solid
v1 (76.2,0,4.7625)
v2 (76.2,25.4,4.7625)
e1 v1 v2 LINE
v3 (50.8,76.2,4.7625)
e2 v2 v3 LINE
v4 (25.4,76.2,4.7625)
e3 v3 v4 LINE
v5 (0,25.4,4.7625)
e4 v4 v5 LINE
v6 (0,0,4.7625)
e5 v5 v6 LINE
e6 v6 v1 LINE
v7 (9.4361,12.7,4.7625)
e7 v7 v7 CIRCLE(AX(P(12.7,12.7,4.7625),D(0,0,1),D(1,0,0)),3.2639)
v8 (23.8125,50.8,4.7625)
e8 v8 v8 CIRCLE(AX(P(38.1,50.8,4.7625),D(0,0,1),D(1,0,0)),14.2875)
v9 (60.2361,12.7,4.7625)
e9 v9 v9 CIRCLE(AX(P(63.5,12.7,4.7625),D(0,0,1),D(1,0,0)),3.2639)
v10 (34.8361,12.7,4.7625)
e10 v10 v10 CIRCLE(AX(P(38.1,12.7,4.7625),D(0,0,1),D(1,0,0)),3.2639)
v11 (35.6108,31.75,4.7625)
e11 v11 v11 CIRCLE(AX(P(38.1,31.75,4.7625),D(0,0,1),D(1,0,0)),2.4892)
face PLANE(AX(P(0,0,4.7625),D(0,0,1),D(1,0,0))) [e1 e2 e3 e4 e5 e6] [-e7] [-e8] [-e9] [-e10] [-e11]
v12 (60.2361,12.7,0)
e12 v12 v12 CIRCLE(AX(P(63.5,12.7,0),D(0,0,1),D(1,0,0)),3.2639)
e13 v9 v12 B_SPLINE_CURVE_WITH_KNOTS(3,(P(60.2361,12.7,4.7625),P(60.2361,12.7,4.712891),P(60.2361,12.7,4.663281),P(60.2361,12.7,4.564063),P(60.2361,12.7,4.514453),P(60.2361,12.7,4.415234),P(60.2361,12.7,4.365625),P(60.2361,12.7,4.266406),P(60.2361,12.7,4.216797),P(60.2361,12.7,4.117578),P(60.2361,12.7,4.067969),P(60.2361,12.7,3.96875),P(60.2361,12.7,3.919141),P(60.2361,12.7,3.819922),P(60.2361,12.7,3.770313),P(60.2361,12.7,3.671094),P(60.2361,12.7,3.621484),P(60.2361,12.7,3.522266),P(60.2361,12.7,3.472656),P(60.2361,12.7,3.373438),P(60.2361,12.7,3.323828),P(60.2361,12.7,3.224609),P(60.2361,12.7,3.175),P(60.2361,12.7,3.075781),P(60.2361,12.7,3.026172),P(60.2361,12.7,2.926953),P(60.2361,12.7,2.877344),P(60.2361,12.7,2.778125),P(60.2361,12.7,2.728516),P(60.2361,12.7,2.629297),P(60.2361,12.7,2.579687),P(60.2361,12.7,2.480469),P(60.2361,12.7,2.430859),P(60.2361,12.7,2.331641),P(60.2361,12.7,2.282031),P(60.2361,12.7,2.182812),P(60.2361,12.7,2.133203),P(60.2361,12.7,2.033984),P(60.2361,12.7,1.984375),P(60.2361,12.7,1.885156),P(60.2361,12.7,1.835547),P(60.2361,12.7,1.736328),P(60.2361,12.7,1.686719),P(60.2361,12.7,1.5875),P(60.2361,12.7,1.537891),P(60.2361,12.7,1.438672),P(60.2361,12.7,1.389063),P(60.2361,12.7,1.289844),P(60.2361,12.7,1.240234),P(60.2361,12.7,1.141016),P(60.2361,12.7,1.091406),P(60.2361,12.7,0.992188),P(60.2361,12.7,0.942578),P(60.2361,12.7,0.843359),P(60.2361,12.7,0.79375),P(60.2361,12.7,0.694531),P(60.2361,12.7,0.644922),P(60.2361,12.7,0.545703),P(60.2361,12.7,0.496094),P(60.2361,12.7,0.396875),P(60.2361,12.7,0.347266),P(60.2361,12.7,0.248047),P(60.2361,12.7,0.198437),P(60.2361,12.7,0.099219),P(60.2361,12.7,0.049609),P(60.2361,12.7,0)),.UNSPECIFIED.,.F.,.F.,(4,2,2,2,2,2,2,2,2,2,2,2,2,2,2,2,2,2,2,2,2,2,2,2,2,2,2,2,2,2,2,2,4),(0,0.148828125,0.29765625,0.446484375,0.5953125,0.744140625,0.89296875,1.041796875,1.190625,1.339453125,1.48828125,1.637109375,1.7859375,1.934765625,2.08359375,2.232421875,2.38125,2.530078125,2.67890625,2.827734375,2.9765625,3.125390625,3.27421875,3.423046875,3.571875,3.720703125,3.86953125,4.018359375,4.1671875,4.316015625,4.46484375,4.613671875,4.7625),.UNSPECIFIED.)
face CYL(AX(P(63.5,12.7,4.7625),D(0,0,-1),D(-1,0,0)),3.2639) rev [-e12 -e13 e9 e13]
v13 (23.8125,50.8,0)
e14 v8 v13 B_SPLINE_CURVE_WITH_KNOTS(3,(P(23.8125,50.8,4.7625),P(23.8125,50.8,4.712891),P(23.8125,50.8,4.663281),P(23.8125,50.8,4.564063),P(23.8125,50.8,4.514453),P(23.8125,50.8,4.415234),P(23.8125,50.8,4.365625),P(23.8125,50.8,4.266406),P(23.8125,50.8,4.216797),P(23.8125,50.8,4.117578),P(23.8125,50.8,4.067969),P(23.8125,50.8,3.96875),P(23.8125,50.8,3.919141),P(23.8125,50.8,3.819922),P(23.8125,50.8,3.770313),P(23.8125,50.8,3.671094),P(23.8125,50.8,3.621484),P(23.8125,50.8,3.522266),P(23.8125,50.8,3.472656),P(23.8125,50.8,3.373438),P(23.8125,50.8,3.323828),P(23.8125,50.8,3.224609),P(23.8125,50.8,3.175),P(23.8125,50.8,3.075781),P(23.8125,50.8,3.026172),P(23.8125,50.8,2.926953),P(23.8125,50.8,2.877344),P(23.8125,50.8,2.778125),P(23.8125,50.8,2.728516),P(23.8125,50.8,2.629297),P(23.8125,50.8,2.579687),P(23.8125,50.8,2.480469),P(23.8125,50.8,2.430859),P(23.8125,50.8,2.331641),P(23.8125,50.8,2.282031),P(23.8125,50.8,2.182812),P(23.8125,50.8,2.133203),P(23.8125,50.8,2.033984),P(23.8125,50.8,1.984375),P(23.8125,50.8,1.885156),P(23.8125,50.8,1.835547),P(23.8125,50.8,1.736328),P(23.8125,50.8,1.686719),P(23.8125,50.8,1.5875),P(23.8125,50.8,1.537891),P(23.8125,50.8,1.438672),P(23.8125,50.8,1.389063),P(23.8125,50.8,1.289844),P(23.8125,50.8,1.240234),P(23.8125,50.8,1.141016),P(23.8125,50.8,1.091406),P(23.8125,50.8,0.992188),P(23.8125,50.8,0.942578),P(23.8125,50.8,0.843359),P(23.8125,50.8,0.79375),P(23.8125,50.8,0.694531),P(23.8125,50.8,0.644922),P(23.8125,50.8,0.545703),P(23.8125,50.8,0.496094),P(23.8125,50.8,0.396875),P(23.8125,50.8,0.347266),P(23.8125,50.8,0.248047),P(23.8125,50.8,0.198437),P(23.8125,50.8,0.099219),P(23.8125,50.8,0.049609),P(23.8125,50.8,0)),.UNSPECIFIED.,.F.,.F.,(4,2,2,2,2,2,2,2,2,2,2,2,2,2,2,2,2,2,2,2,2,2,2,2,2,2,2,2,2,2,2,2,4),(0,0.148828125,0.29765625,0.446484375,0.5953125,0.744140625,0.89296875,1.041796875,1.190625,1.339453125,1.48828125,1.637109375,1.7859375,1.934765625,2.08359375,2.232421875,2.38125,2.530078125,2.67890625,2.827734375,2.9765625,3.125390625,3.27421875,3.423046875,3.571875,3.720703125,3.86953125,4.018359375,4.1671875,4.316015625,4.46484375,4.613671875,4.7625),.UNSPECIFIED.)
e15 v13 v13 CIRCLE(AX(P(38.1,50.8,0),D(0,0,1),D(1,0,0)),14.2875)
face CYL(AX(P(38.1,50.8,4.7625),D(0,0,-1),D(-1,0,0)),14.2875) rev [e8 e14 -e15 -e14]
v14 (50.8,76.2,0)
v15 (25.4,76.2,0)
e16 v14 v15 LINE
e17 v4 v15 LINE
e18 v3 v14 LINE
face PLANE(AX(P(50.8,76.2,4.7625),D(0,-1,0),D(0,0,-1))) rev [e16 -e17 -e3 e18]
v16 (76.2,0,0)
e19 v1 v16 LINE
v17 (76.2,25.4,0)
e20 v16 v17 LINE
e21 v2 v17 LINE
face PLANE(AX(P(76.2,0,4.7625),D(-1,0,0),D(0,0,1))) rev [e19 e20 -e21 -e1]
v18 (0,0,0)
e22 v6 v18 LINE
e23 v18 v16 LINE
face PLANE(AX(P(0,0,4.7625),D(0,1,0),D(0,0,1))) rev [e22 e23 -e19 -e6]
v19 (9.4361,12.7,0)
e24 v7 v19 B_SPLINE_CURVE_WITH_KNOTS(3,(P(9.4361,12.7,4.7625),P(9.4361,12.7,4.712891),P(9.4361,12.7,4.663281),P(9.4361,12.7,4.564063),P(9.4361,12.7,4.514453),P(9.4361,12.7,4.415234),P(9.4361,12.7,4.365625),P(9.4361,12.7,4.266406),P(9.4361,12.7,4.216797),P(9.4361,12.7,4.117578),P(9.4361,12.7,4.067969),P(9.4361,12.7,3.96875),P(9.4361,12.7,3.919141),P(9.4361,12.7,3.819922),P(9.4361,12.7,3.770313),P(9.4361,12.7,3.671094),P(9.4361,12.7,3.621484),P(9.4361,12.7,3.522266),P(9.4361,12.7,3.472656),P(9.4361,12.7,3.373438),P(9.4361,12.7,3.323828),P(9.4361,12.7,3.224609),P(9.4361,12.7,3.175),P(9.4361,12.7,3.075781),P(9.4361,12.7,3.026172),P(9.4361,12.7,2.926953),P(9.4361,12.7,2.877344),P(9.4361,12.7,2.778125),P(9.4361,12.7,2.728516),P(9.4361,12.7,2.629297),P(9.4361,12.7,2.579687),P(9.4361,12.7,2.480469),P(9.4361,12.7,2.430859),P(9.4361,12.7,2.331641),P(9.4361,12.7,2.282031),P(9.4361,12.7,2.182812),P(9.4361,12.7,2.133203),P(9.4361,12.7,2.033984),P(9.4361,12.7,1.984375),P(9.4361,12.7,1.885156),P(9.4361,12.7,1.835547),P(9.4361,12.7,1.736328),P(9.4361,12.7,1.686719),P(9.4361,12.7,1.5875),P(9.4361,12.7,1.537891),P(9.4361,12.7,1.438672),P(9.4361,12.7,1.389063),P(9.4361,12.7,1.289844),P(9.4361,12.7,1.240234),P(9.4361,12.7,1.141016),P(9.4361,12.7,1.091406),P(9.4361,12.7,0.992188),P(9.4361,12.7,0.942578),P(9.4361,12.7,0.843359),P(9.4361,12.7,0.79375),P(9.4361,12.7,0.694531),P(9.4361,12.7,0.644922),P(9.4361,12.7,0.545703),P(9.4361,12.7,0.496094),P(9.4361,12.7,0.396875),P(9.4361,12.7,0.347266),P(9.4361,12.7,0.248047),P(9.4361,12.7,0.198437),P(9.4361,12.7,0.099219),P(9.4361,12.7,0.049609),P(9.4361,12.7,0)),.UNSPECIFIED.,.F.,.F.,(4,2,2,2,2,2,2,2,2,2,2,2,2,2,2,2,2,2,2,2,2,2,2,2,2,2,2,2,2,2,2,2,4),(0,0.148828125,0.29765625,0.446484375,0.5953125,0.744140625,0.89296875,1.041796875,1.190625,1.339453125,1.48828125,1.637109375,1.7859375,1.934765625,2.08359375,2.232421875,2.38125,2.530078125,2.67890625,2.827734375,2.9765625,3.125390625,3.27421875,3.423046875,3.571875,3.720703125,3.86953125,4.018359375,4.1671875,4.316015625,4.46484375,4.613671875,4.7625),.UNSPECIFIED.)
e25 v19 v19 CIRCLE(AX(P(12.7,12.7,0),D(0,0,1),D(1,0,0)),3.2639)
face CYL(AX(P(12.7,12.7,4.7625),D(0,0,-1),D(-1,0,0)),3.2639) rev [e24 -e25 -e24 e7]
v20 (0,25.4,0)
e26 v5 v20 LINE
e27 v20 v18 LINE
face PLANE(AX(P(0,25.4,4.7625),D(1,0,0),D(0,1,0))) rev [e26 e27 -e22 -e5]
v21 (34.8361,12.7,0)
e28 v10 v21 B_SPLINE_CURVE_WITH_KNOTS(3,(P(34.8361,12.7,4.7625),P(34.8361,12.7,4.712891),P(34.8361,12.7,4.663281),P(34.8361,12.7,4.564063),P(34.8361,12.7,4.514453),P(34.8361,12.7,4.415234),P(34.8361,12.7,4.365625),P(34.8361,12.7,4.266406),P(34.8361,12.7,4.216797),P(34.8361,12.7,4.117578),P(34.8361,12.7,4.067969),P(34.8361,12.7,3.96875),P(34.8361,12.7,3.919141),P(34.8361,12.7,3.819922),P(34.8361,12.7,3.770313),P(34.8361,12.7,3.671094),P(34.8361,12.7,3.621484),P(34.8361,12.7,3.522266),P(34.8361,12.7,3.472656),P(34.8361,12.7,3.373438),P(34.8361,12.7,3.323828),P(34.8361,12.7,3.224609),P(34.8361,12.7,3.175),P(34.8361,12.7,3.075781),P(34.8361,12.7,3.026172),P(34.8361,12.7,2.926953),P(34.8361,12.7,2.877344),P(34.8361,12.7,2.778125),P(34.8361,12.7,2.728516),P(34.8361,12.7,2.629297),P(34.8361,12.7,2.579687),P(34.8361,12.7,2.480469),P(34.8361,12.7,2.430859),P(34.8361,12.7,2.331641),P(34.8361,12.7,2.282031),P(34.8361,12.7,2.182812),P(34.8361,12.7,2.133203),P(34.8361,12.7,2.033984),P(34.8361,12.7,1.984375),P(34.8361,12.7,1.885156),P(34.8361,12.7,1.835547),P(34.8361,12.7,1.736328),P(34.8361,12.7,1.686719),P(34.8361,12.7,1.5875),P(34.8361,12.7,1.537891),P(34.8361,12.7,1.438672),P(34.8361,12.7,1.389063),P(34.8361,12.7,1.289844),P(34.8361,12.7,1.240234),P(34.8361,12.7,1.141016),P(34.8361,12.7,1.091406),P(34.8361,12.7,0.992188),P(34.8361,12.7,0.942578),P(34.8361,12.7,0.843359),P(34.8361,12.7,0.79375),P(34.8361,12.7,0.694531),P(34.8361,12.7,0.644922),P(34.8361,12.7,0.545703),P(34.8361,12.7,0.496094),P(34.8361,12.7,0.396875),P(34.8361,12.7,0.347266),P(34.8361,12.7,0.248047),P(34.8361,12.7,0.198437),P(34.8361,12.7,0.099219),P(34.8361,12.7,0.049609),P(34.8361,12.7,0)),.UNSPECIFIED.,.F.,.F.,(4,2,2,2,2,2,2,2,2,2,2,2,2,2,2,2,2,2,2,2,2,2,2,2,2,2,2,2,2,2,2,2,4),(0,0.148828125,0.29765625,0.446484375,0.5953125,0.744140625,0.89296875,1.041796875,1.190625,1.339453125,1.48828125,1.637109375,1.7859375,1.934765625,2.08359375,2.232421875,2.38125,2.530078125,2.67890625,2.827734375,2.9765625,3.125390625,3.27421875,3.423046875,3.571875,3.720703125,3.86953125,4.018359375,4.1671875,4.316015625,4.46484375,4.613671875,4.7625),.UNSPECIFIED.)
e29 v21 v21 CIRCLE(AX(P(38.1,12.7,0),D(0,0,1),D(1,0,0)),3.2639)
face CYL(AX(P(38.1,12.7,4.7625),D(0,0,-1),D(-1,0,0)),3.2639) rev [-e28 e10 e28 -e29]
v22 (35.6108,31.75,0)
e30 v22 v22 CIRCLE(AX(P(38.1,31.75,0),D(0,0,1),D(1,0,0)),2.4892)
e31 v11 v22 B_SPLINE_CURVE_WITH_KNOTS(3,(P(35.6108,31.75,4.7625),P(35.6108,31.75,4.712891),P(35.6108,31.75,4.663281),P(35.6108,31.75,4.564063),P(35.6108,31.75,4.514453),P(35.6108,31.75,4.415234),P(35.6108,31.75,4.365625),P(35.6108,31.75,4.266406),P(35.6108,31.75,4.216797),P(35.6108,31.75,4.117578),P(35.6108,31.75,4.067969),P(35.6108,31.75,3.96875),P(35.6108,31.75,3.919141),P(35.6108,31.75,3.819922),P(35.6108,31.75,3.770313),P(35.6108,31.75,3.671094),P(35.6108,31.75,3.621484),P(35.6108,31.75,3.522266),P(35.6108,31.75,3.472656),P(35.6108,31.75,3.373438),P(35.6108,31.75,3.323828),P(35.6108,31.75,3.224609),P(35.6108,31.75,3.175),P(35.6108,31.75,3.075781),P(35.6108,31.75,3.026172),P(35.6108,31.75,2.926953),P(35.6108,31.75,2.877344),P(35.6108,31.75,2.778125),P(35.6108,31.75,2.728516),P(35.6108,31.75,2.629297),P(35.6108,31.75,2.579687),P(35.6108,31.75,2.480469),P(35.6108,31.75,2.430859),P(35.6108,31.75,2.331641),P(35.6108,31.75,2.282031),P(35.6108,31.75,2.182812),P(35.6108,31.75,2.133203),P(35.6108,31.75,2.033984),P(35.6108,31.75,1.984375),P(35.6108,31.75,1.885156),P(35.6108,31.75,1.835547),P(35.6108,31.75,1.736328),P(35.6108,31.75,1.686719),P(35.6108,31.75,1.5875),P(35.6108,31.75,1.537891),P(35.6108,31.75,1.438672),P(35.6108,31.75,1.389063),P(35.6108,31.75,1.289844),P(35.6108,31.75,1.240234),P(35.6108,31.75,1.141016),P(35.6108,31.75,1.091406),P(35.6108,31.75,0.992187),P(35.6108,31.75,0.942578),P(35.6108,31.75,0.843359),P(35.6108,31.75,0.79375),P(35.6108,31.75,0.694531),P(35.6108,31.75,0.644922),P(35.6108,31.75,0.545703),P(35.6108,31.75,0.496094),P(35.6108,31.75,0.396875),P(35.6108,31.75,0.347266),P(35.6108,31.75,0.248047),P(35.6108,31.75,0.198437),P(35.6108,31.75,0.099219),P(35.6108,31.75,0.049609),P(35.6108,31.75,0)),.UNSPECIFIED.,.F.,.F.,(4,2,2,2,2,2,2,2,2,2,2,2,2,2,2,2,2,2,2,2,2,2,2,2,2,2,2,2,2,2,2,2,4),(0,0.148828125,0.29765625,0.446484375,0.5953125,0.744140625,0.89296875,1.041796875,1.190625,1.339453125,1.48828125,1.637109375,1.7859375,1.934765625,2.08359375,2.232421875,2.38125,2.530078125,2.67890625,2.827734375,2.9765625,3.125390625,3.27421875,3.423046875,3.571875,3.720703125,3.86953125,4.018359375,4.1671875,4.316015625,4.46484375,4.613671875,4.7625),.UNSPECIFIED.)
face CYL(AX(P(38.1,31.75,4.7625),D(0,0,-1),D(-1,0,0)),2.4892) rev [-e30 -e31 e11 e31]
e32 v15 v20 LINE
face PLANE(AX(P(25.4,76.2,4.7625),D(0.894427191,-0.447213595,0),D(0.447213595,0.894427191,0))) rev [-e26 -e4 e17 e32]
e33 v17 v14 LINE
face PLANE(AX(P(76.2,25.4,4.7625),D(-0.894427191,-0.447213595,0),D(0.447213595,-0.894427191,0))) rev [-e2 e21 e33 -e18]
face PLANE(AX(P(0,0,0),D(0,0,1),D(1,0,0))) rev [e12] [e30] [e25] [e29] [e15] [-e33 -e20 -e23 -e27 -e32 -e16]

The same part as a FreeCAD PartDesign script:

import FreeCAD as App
import Part
import Sketcher

V = App.Vector
Q = App.Units.Quantity

doc = App.newDocument("Part")
params = doc.addObject("Spreadsheet::Sheet", "Params")
for row, (alias, value) in enumerate([
    ("sketch1_width", "3 in"),
    ("sketch1_width2", "1 in"),
    ("sketch1_diameter", "0.257 in"),
    ("sketch1_diameter2", "0.196 in"),
    ("sketch1_diameter3", "1.125 in"),
    ("pad1_length", "0.1875 in"),
], start=1):
    params.set(f"A{row}", alias)
    params.set(f"B{row}", "=" + value)
    params.setAlias(f"B{row}", alias)

body = doc.addObject("PartDesign::Body", "Body")

sketch1 = doc.addObject("Sketcher::SketchObject", "Sketch")
body.addObject(sketch1)
sketch1.AttachmentSupport = (doc.XY_Plane, [""])
sketch1.MapMode = "FlatFace"
sketch1.addGeometry([
    Part.LineSegment(V(0, 0, 0), V(76.2, 0, 0)),
    Part.LineSegment(V(76.2, 0, 0), V(76.2, 25.4, 0)),
    Part.LineSegment(V(76.2, 25.4, 0), V(50.8, 76.2, 0)),
    Part.LineSegment(V(50.8, 76.2, 0), V(25.4, 76.2, 0)),
    Part.LineSegment(V(25.4, 76.2, 0), V(0, 25.4, 0)),
    Part.LineSegment(V(0, 25.4, 0), V(0, 0, 0)),
    Part.Circle(V(12.7, 12.7, 0), V(0, 0, 1), 3.3),
    Part.Circle(V(38.1, 12.7, 0), V(0, 0, 1), 3.3),
    Part.Circle(V(63.5, 12.7, 0), V(0, 0, 1), 3.3),
    Part.Circle(V(38.1, 31.8, 0), V(0, 0, 1), 2.5),
    Part.Circle(V(38.1, 50.8, 0), V(0, 0, 1), 14.3),
], False)
sketch1.addConstraint([
    Sketcher.Constraint("Coincident", 0, 2, 1, 1),
    Sketcher.Constraint("Coincident", 1, 2, 2, 1),
    Sketcher.Constraint("Coincident", 2, 2, 3, 1),
    Sketcher.Constraint("Coincident", 3, 2, 4, 1),
    Sketcher.Constraint("Coincident", 4, 2, 5, 1),
    Sketcher.Constraint("Coincident", 5, 2, 0, 1),
    Sketcher.Constraint("Horizontal", 0),
    Sketcher.Constraint("Vertical", 1),
    Sketcher.Constraint("Horizontal", 3),
    Sketcher.Constraint("Vertical", 5),
    Sketcher.Constraint("Coincident", 5, 2, -1, 1),
    Sketcher.Constraint("Equal", 6, 7),
    Sketcher.Constraint("Equal", 7, 8),
    Sketcher.Constraint("Horizontal", 6, 3, 7, 3),
    Sketcher.Constraint("Horizontal", 7, 3, 8, 3),
    Sketcher.Constraint("Horizontal", 1, 2, 4, 2),
    Sketcher.Constraint("Vertical", 7, 3, 9, 3),
    Sketcher.Constraint("Vertical", 9, 3, 10, 3),
    Sketcher.Constraint("Equal", 3, 1),
    Sketcher.Constraint("Equal", 2, 4),
    Sketcher.Constraint("DistanceX", 0, 1, 0, 2, Q("3 in")),
    Sketcher.Constraint("DistanceX", 3, 2, 3, 1, Q("1 in")),
    Sketcher.Constraint("Diameter", 6, Q("0.257 in")),
    Sketcher.Constraint("Diameter", 9, Q("0.196 in")),
    Sketcher.Constraint("Diameter", 10, Q("1.125 in")),
    Sketcher.Constraint("DistanceY", -1, 1, 10, 3, Q("2 in")),
    Sketcher.Constraint("DistanceY", -1, 1, 2, 2, Q("3 in")),
    Sketcher.Constraint("DistanceX", 6, 3, 7, 3, Q("1 in")),
    Sketcher.Constraint("DistanceX", 7, 3, 8, 3, Q("1 in")),
    Sketcher.Constraint("DistanceX", -1, 1, 6, 3, Q("0.5 in")),
    Sketcher.Constraint("DistanceY", -1, 1, 6, 3, Q("0.5 in")),
    Sketcher.Constraint("DistanceY", -1, 1, 9, 3, Q("1.25 in")),
])
sketch1.setExpression("Constraints[20]", "Params.sketch1_width")
sketch1.setExpression("Constraints[21]", "Params.sketch1_width2")
sketch1.setExpression("Constraints[22]", "Params.sketch1_diameter")
sketch1.setExpression("Constraints[23]", "Params.sketch1_diameter2")
sketch1.setExpression("Constraints[24]", "Params.sketch1_diameter3")
pad1 = doc.addObject("PartDesign::Pad", "Pad")
body.addObject(pad1)
pad1.Profile = sketch1
pad1.setExpression("Length", "Params.pad1_length")

doc.recompute()
